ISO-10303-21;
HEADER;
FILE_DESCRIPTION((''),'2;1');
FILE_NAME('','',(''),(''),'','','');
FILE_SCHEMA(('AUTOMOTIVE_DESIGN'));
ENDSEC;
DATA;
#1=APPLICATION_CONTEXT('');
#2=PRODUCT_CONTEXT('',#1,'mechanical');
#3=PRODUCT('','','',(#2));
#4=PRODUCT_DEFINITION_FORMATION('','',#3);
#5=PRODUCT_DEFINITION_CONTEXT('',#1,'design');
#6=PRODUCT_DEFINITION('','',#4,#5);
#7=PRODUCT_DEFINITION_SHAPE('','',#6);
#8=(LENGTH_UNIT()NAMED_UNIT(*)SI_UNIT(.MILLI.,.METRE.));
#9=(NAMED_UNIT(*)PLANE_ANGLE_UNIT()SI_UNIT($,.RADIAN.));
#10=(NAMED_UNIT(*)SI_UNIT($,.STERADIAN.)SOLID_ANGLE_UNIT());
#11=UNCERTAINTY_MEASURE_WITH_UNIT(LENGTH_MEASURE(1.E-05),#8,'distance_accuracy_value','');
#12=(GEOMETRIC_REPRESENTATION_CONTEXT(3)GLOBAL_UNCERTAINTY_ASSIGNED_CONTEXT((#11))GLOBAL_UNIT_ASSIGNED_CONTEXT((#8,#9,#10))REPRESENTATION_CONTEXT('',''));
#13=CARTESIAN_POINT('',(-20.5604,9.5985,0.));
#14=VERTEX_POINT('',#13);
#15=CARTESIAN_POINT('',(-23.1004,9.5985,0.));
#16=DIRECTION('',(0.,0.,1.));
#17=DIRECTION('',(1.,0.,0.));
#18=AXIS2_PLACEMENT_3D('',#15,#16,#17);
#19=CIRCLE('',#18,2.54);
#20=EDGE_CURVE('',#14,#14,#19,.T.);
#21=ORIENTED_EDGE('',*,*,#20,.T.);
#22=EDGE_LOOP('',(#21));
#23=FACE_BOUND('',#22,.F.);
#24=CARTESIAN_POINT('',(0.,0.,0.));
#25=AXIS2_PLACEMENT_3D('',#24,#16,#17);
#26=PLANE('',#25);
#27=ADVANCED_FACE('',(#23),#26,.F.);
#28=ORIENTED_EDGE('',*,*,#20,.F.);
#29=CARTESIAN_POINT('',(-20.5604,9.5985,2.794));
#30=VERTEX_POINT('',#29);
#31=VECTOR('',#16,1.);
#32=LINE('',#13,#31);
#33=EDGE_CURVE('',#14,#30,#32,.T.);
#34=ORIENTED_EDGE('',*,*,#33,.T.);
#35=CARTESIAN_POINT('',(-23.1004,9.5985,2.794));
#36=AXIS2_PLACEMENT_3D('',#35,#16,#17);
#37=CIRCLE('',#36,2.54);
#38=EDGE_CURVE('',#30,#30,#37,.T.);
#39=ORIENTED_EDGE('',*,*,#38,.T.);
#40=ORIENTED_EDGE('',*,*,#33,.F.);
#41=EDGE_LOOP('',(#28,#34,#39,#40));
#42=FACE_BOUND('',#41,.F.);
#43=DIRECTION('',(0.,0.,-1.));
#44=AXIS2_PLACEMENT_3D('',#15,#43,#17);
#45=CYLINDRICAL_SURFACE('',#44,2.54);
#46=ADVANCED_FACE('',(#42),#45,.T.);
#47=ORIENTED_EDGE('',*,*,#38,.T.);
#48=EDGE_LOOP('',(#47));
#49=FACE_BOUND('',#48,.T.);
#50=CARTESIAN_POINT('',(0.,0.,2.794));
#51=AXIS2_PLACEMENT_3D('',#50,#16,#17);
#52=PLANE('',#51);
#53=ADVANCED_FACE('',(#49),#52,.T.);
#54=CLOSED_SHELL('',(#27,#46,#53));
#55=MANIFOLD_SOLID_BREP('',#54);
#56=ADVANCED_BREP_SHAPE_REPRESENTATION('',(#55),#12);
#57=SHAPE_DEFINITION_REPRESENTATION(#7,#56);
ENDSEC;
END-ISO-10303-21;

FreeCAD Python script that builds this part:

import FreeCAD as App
import Part
import Sketcher

V = App.Vector
Q = App.Units.Quantity

doc = App.newDocument("Part")
body = doc.addObject("PartDesign::Body", "Body")

sketch1 = doc.addObject("Sketcher::SketchObject", "Sketch")
body.addObject(sketch1)
sketch1.AttachmentSupport = (doc.XY_Plane, [""])
sketch1.MapMode = "FlatFace"
sketch1.addGeometry(Part.Circle(V(-23.1, 9.6, 0), V(0, 0, 1), 2.5), False)
sketch1.addConstraint(Sketcher.Constraint("Diameter", 0, Q("0.2 in")))
sketch1.addConstraint(Sketcher.Constraint("DistanceY", -1, 1, 0, 3, Q("0.3779 in")))
sketch1.addConstraint(Sketcher.Constraint("DistanceX", 0, 3, -1, 1, Q("23.1004 mm")))
pad1 = doc.addObject("PartDesign::Pad", "Pad")
body.addObject(pad1)
pad1.Profile = sketch1
pad1.Length = Q("0.11 in")

doc.recompute()
